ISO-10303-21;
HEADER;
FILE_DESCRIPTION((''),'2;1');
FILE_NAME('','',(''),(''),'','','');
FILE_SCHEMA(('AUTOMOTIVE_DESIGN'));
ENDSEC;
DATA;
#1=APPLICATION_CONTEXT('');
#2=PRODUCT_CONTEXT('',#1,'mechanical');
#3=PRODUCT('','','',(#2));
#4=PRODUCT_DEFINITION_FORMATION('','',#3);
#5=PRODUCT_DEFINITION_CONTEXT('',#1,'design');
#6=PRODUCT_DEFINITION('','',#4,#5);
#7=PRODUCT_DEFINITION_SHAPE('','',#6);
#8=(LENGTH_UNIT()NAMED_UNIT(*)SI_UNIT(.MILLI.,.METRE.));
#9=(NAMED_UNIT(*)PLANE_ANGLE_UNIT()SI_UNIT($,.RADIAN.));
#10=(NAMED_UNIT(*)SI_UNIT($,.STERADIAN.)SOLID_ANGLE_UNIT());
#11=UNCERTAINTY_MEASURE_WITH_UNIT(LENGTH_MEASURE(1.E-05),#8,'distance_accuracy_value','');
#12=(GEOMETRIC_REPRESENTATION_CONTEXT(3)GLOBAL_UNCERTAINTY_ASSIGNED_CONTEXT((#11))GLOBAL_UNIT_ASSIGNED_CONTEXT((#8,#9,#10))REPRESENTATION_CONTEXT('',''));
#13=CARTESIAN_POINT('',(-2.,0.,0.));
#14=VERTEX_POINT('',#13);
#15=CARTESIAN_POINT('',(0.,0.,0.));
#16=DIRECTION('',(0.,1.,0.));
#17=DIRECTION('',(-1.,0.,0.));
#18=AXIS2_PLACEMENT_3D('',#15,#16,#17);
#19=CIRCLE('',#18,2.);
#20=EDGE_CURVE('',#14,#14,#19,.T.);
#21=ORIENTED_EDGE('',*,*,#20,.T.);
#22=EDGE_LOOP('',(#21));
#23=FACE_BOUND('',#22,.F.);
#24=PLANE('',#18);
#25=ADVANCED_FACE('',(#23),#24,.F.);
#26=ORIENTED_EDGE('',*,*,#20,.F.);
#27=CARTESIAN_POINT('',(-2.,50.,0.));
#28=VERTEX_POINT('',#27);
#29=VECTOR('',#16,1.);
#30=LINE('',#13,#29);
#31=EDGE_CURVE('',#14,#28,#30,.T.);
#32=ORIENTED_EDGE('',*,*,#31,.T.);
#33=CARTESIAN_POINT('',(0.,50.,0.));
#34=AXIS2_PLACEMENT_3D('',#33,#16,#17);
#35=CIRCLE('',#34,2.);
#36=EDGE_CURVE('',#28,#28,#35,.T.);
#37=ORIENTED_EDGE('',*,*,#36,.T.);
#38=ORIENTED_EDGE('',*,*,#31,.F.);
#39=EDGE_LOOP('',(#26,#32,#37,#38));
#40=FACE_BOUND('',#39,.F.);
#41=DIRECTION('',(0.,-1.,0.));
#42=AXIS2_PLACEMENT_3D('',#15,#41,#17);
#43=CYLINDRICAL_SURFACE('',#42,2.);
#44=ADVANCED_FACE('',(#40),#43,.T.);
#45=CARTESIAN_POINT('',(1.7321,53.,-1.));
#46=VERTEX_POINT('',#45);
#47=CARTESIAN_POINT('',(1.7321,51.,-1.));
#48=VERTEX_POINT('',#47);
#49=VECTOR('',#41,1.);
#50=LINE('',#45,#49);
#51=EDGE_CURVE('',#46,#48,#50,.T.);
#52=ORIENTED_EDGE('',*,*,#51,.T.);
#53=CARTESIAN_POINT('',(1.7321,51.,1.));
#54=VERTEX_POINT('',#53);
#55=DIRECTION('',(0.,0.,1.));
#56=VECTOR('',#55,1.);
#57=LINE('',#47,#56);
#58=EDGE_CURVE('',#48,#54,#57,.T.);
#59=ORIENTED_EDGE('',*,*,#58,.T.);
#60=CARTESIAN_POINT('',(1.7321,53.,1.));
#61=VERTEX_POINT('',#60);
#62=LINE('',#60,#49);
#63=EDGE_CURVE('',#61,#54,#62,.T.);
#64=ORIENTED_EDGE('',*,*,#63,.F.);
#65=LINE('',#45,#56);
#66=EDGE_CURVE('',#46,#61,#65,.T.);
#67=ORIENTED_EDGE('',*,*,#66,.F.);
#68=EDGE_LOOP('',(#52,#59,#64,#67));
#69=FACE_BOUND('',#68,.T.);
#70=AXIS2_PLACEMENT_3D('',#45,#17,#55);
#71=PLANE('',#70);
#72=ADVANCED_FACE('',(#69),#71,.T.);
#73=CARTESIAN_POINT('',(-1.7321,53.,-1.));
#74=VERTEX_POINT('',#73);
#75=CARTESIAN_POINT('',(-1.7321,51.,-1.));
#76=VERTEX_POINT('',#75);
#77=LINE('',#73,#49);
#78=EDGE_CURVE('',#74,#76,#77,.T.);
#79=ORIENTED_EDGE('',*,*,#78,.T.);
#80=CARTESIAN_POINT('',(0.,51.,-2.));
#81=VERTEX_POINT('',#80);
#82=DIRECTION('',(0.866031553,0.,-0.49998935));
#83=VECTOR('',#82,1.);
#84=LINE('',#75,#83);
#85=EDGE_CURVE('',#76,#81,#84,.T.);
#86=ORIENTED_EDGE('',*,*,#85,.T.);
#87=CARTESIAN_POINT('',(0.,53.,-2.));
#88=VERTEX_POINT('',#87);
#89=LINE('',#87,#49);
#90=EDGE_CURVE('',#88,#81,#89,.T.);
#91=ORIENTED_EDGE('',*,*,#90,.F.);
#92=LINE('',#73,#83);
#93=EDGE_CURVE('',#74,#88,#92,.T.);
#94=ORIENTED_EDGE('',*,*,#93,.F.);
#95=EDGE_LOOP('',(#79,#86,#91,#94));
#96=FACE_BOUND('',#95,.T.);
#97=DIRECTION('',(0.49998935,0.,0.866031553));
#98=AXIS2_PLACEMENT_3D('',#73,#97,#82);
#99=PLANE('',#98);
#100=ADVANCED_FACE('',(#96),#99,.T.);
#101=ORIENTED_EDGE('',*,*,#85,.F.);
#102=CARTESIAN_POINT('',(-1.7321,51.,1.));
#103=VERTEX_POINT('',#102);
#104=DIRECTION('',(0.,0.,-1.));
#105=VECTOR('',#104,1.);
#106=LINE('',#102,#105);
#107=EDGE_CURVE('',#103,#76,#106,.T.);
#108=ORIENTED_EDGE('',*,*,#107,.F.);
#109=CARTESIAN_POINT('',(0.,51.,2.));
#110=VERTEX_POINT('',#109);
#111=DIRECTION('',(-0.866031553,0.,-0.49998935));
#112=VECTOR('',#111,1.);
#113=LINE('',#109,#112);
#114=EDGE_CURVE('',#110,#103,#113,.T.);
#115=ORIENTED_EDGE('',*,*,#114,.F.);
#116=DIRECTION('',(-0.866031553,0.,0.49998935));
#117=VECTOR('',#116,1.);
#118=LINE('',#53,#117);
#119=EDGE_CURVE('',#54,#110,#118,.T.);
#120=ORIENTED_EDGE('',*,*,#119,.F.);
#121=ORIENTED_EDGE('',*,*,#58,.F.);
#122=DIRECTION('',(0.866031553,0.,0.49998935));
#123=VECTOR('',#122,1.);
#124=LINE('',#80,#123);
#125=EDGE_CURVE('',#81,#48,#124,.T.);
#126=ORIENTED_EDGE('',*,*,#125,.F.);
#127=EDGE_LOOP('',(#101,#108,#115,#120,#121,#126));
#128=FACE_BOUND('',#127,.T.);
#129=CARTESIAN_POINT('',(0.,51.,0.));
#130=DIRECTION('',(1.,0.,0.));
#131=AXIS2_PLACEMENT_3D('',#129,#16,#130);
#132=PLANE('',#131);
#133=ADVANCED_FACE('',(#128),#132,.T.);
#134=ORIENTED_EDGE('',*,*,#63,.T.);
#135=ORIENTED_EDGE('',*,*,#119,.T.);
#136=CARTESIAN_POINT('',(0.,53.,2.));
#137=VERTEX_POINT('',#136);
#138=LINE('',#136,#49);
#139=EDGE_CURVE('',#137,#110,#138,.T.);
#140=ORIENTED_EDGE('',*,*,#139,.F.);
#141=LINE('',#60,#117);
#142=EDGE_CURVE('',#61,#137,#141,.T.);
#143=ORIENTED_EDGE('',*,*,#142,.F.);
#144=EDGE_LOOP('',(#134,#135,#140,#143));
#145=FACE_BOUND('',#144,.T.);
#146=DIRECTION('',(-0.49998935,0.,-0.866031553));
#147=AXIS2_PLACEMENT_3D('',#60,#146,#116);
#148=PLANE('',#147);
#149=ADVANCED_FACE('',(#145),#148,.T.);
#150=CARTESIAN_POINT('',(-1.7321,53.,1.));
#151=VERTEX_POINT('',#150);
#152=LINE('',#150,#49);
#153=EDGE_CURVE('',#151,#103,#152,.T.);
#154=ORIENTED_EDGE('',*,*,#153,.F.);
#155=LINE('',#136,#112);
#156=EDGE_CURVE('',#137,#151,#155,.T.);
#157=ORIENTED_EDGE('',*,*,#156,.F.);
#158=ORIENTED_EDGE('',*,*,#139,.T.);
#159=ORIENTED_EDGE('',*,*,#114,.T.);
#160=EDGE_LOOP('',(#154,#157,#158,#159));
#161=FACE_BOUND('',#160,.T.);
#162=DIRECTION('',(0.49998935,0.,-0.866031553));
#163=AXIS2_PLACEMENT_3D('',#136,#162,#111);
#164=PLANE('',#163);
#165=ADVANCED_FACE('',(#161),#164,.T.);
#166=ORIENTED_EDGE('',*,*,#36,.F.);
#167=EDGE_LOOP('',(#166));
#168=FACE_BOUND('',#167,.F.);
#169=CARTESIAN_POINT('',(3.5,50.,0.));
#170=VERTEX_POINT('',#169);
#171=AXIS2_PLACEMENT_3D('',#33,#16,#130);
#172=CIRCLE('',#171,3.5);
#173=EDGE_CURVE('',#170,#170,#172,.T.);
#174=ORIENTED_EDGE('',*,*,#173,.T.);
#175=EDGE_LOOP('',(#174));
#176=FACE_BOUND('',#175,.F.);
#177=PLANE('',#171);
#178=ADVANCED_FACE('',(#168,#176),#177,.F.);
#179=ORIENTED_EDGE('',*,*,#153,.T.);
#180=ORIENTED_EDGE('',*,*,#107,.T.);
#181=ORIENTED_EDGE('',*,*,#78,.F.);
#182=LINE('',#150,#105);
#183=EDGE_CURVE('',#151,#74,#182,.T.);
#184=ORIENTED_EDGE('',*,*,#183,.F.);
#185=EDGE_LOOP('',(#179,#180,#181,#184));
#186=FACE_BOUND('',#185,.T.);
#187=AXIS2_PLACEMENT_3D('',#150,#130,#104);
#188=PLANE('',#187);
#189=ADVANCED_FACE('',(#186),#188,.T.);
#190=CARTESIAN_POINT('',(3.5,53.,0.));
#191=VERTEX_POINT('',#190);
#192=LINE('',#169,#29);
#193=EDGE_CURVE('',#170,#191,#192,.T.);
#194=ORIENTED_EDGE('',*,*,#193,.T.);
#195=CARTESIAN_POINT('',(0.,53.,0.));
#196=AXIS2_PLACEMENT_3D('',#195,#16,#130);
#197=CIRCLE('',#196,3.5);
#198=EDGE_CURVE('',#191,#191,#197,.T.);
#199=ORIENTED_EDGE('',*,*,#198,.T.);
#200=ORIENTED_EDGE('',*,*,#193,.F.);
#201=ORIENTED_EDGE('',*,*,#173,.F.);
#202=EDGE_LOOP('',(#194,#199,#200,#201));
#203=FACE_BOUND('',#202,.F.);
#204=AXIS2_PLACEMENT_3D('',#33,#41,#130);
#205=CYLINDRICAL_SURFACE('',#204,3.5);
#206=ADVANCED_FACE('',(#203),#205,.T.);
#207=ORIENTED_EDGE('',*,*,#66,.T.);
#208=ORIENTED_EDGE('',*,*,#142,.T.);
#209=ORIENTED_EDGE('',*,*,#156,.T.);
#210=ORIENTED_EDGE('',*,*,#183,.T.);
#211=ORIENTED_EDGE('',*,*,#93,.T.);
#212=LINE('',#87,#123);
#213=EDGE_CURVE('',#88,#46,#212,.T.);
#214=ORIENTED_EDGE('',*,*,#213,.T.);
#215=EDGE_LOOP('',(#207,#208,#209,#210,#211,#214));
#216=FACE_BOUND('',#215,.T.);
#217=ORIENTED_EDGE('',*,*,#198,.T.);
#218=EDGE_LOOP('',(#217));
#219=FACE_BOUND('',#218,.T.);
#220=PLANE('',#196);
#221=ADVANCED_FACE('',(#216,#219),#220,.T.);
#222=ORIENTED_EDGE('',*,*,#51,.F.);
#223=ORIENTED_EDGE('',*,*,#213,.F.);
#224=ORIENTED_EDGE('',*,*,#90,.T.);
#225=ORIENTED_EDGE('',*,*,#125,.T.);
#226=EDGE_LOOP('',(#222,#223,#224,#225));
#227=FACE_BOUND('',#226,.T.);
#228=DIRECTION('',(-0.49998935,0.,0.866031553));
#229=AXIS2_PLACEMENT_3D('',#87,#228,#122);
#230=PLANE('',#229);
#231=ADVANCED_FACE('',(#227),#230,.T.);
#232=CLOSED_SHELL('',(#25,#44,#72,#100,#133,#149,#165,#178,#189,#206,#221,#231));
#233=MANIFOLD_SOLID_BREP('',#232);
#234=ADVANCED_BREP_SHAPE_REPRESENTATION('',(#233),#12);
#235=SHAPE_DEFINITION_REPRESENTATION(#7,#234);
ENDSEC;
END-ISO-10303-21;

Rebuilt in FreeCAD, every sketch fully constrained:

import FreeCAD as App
import Part
import Sketcher
Q = App.Units.Quantity


def add_polygon(sketch, points):
    """Adds a closed chain of lines whose ends are joined by coincident constraints."""
    first, n = sketch.GeometryCount, len(points)
    for a, b in zip(points, points[1:] + points[:1]):
        sketch.addGeometry(Part.LineSegment(App.Vector(*a, 0), App.Vector(*b, 0)), False)
    for i in range(n):
        sketch.addConstraint(Sketcher.Constraint("Coincident", first + i, 2, first + (i + 1) % n, 1))

doc = App.newDocument("Part")
body = doc.addObject("PartDesign::Body", "Body")

sketch1 = body.newObject("Sketcher::SketchObject", "Sketch")
sketch1.AttachmentSupport = (doc.getObject("XZ_Plane"), [""])
sketch1.MapMode = "FlatFace"
sketch1.addGeometry(Part.Circle(App.Vector(0, 0, 0), App.Vector(0, 0, 1), 2), False)
sketch1.addConstraint(Sketcher.Constraint("Coincident", 0, 3, -1, 1))
sketch1.addConstraint(Sketcher.Constraint("Diameter", 0, 4.0))
pad1 = body.newObject("PartDesign::Pad", "Pad")
pad1.Profile = sketch1
pad1.Length = 50
pad1.Reversed = True

sketch2 = body.newObject("Sketcher::SketchObject", "Sketch001")
sketch2.AttachmentSupport = (doc.getObject("XZ_Plane"), [""])
sketch2.MapMode = "FlatFace"
sketch2.AttachmentOffset = App.Placement(App.Vector(0, 0, -50), App.Rotation())
sketch2.addGeometry(Part.Circle(App.Vector(0, 0, 0), App.Vector(0, 0, 1), 3.5), False)
sketch2.addConstraint(Sketcher.Constraint("Coincident", 0, 3, -1, 1))
sketch2.addConstraint(Sketcher.Constraint("Diameter", 0, 7.0))
pad2 = body.newObject("PartDesign::Pad", "Pad001")
pad2.Profile = sketch2
pad2.Length = 3
pad2.Reversed = True

sketch3 = body.newObject("Sketcher::SketchObject", "Sketch002")
sketch3.AttachmentSupport = (doc.getObject("XZ_Plane"), [""])
sketch3.MapMode = "FlatFace"
sketch3.AttachmentOffset = App.Placement(App.Vector(0, 0, -53), App.Rotation())
add_polygon(sketch3, [(1.7, 1), (1.7, -1), (0, -2), (-1.7, -1), (-1.7, 1), (0, 2)])
sketch3.addConstraint(Sketcher.Constraint("Vertical", 0))
sketch3.addConstraint(Sketcher.Constraint("Vertical", 3))
sketch3.addConstraint(Sketcher.Constraint("Symmetric", 0, 2, 3, 2, -1, 1))
sketch3.addConstraint(Sketcher.Constraint("Symmetric", 1, 2, 4, 2, -1, 1))
sketch3.addConstraint(Sketcher.Constraint("PointOnObject", 1, 2, -2))
sketch3.addConstraint(Sketcher.Constraint("Parallel", 2, 5))
sketch3.addConstraint(Sketcher.Constraint("Horizontal", 0, 2, 2, 2))
sketch3.addConstraint(Sketcher.Constraint("DistanceY", 0, 2, 0, 1, 2.0))
sketch3.addConstraint(Sketcher.Constraint("Angle", 1, Q("-150.0007 deg")))
sketch3.addConstraint(Sketcher.Constraint("Distance", 1, 2.0))
pocket1 = body.newObject("PartDesign::Pocket", "Pocket")
pocket1.Profile = sketch3
pocket1.Length = 2
pocket1.Reversed = True

doc.recompute()
